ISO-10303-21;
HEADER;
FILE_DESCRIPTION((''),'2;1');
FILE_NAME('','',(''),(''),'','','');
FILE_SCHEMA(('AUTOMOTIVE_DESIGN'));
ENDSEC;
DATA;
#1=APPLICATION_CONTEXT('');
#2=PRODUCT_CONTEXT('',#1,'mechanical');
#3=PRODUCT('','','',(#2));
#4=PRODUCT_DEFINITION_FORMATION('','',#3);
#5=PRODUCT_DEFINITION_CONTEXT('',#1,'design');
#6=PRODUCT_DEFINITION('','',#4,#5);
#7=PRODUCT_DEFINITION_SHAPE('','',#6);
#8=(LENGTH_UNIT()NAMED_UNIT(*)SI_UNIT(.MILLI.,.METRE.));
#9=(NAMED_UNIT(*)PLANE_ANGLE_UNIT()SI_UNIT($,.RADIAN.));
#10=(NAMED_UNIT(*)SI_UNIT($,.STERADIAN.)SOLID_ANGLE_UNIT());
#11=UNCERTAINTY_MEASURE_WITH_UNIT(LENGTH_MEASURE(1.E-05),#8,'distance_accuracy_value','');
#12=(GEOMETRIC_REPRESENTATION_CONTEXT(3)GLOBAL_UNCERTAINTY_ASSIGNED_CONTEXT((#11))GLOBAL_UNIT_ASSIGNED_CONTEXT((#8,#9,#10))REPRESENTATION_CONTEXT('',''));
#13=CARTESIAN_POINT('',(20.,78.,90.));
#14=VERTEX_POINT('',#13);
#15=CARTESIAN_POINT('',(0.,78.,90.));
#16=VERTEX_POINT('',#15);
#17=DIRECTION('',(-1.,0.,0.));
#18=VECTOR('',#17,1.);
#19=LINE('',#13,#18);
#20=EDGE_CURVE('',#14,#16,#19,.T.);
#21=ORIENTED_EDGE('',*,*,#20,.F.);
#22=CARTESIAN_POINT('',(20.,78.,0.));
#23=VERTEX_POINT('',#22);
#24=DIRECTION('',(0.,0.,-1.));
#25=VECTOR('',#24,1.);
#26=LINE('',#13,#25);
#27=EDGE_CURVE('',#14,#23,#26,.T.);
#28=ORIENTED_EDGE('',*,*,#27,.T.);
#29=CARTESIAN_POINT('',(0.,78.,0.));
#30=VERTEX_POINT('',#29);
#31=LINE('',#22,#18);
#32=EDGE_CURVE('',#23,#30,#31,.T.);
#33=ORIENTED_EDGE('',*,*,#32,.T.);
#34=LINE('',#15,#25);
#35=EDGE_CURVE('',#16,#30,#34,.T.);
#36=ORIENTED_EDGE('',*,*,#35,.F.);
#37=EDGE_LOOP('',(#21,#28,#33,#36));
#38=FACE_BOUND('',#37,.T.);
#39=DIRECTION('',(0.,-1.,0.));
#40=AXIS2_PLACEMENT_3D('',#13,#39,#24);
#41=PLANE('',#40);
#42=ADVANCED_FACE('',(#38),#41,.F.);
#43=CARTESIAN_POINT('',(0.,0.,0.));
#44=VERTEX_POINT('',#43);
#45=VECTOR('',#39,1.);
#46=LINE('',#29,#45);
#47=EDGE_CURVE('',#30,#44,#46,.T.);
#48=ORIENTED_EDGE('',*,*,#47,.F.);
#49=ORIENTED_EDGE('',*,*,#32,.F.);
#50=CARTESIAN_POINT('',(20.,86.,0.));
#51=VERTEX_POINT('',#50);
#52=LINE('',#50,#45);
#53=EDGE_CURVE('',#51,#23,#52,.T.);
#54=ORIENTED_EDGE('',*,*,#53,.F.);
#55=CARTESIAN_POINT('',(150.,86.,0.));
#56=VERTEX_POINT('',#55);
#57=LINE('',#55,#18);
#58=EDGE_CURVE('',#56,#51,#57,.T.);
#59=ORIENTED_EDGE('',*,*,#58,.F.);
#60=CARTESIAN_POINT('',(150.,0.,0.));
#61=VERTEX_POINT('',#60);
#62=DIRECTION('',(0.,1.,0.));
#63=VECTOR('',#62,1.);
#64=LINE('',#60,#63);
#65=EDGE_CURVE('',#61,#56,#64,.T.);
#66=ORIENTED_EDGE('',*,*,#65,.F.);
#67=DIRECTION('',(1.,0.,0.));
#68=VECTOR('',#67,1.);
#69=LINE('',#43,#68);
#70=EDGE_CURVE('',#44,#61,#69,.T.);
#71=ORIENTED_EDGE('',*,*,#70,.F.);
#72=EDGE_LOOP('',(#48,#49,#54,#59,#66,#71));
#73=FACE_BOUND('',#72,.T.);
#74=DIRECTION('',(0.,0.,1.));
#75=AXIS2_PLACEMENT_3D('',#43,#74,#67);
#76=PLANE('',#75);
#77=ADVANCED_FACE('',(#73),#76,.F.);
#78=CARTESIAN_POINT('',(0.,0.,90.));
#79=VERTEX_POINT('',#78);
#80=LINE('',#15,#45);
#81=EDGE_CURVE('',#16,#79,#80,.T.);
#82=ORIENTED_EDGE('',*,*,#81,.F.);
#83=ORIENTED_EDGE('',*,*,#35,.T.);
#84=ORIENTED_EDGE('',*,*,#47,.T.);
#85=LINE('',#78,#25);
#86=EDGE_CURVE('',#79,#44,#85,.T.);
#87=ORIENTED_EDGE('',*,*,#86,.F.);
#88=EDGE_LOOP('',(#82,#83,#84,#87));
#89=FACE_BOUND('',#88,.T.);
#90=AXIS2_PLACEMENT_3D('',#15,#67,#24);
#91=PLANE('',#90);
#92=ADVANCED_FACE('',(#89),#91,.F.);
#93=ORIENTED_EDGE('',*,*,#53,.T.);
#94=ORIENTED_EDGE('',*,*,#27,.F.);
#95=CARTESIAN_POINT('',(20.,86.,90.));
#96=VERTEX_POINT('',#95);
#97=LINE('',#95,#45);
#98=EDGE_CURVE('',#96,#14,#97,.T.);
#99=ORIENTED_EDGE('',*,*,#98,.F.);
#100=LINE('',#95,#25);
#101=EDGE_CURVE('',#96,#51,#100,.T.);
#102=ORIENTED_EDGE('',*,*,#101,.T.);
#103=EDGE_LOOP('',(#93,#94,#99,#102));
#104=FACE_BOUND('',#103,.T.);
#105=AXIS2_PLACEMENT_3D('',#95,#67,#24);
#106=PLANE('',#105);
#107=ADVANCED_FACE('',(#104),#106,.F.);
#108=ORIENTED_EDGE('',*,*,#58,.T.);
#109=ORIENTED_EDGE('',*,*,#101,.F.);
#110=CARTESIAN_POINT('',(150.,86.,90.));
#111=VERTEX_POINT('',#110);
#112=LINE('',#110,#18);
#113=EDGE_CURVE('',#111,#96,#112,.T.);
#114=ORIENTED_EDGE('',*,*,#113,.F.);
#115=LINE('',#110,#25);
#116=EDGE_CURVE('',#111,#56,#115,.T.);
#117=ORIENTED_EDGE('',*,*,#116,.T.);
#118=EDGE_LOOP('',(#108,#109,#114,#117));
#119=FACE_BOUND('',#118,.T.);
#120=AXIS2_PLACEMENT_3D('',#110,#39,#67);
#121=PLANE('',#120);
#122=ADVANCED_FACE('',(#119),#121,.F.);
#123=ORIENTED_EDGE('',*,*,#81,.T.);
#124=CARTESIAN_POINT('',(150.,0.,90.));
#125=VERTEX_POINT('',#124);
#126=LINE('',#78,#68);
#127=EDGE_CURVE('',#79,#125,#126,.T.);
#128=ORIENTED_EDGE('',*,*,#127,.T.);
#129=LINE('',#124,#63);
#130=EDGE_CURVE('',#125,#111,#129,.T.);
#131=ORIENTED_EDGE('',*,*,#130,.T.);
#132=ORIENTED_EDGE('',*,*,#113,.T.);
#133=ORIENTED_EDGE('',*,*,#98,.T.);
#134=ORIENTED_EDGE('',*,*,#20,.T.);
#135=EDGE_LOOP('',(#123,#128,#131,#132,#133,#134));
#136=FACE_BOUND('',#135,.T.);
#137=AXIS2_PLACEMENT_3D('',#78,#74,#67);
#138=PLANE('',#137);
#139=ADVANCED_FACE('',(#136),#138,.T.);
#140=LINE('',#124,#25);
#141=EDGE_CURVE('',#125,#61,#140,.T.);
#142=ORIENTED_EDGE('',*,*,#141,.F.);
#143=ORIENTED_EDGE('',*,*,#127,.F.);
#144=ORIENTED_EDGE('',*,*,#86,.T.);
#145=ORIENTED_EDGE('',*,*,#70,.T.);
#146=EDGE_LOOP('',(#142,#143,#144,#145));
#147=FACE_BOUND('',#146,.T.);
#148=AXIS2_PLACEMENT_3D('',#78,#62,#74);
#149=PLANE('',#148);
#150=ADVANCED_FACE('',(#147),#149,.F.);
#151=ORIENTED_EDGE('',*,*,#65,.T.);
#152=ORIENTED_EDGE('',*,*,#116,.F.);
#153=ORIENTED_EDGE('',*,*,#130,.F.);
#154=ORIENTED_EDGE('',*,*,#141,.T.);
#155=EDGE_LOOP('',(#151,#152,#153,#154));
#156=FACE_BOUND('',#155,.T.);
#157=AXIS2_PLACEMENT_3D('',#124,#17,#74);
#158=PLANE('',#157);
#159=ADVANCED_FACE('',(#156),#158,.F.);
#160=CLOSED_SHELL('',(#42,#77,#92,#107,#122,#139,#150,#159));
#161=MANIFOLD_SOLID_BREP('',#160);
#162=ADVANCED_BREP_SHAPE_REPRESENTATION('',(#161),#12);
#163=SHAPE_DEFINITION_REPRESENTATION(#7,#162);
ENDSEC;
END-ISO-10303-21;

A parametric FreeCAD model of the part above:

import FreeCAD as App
import Part
import Sketcher
from FreeCAD import Vector


def add_polygon(sketch, points):
    """Adds a closed chain of lines whose ends are joined by coincident constraints."""
    first, n = sketch.GeometryCount, len(points)
    for a, b in zip(points, points[1:] + points[:1]):
        sketch.addGeometry(Part.LineSegment(App.Vector(*a, 0), App.Vector(*b, 0)), False)
    for i in range(n):
        sketch.addConstraint(Sketcher.Constraint("Coincident", first + i, 2, first + (i + 1) % n, 1))

doc = App.newDocument("Part")
body = doc.addObject("PartDesign::Body", "Body")

# Sketch on XY plane
sketch1 = body.newObject("Sketcher::SketchObject", "Sketch")
sketch1.AttachmentSupport = (doc.getObject("XY_Plane"), [""])
sketch1.MapMode = "FlatFace"
add_polygon(sketch1, [(0, 0), (150, 0), (150, 86), (20, 86), (20, 78), (0, 78)])  # lines 0-5
sketch1.addConstraint([
    Sketcher.Constraint("Horizontal", 0),
    Sketcher.Constraint("Vertical", 1),
    Sketcher.Constraint("Horizontal", 2),
    Sketcher.Constraint("Vertical", 3),
    Sketcher.Constraint("Horizontal", 4),
    Sketcher.Constraint("Vertical", 5),
    Sketcher.Constraint("Coincident", 5, 2, -1, 1),
    Sketcher.Constraint("DistanceX", 0, 1, 0, 2, 150.0),
    Sketcher.Constraint("DistanceX", 2, 2, 2, 1, 130.0),
    Sketcher.Constraint("DistanceY", 1, 1, 1, 2, 86.0),
    Sketcher.Constraint("DistanceY", 3, 2, 3, 1, 8.0),
])
pad1 = body.newObject("PartDesign::Pad", "Pad")
pad1.Profile = sketch1
pad1.Length = 90

doc.recompute()
